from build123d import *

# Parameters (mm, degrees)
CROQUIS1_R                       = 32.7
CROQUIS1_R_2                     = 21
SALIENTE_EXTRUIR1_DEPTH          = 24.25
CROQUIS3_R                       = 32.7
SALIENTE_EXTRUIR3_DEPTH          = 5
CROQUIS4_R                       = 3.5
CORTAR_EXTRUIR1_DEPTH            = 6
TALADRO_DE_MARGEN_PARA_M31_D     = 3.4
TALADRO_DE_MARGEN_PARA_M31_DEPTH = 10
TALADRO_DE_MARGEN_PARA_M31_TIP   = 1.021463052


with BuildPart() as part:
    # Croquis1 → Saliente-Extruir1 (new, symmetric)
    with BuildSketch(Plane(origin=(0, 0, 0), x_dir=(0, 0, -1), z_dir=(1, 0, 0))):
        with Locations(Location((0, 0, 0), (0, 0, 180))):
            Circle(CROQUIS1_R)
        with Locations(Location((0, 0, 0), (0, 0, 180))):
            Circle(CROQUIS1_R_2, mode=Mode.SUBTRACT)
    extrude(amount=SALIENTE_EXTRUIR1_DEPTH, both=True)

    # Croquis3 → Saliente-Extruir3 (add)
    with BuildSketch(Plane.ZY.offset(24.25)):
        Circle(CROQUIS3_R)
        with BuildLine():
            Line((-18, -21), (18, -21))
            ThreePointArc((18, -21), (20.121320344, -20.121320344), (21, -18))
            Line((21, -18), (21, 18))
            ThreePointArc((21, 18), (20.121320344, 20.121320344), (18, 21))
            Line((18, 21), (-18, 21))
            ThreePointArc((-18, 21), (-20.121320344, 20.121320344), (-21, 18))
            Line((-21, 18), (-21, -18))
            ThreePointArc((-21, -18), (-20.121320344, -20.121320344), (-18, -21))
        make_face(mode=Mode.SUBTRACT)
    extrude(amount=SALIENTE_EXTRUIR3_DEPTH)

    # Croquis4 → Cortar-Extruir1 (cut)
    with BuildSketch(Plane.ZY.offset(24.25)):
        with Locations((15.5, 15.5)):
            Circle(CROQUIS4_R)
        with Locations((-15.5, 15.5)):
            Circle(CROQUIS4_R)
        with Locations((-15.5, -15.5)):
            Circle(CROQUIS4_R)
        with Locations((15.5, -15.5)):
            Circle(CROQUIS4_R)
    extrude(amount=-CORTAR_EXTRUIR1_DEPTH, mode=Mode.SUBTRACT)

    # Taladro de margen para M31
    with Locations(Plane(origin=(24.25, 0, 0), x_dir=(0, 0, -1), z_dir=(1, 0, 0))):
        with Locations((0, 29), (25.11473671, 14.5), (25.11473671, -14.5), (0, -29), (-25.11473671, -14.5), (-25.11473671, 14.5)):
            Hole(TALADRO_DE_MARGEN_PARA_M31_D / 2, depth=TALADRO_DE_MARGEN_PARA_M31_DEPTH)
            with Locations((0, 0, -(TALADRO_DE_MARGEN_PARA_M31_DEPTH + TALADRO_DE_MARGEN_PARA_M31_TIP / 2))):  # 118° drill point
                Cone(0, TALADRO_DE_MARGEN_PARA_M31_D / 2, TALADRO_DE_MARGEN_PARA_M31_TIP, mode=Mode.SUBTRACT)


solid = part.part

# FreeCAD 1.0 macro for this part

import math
import FreeCAD as App
import Part
import Sketcher
from FreeCAD import Vector

doc = App.newDocument("Part")
params = doc.addObject("Spreadsheet::Sheet", "Params")
for row, (alias, value) in enumerate([
    ("sketch1_diameter", "42 mm"),
    ("sketch1_diameter2", "65.4 mm"),
    ("pad1_length", "48.5 mm"),
    ("sketch2_radius", "3 mm"),
    ("sketch2_diameter", "65.4 mm"),
    ("sketch2_width", "36 mm"),
    ("pad2_length", "5 mm"),
    ("sketch3_diameter", "7 mm"),
    ("pocket1_length", "6 mm"),
    ("sketch4_diameter", "3.4 mm"),
    ("hole_diameter", "3.4 mm"),
    ("hole_depth", "10 mm"),
], start=1):
    params.set(f"A{row}", alias)
    params.set(f"B{row}", "=" + value)
    params.setAlias(f"B{row}", alias)

body = doc.addObject("PartDesign::Body", "Body")

# Sketch on YZ plane
sketch1 = body.newObject("Sketcher::SketchObject", "Sketch")
sketch1.AttachmentSupport = (doc.getObject("YZ_Plane"), [""])
sketch1.MapMode = "FlatFace"
sketch1.addGeometry([
    Part.Circle(Vector(0, 0, 0), Vector(0, 0, 1), 33),
    Part.Circle(Vector(0, 0, 0), Vector(0, 0, 1), 21),
], False)
sketch1.addConstraint([
    Sketcher.Constraint("Coincident", 0, 3, -1, 1),
    Sketcher.Constraint("Coincident", 1, 3, -1, 1),
    Sketcher.Constraint("Diameter", 1, 42.0),
    Sketcher.Constraint("Diameter", 0, 65.4),
])
sketch1.setExpression("Constraints[2]", "Params.sketch1_diameter")
sketch1.setExpression("Constraints[3]", "Params.sketch1_diameter2")
pad1 = body.newObject("PartDesign::Pad", "Pad")
pad1.Profile = sketch1
pad1.setExpression("Length", "Params.pad1_length")
pad1.Midplane = True

# Sketch on YZ plane
sketch2 = body.newObject("Sketcher::SketchObject", "Sketch001")
sketch2.AttachmentSupport = (doc.getObject("YZ_Plane"), [""])
sketch2.MapMode = "FlatFace"
sketch2.AttachmentOffset = App.Placement(Vector(0, 0, -24.25), App.Rotation())
sketch2.addGeometry([
    Part.Circle(Vector(0, 0, 0), Vector(0, 0, 1), 32.7),  # 0
    Part.LineSegment(Vector(-21, 18, 0), Vector(-21, -18, 0)),  # 1
    Part.ArcOfCircle(Part.Circle(Vector(-18, -18, 0), Vector(0, 0, 1), 3), math.radians(180), math.radians(270)),  # 2
    Part.LineSegment(Vector(-18, -21, 0), Vector(18, -21, 0)),  # 3
    Part.ArcOfCircle(Part.Circle(Vector(18, -18, 0), Vector(0, 0, 1), 3), math.radians(-90), math.radians(0)),  # 4
    Part.LineSegment(Vector(21, -18, 0), Vector(21, 18, 0)),  # 5
    Part.ArcOfCircle(Part.Circle(Vector(18, 18, 0), Vector(0, 0, 1), 3), math.radians(0), math.radians(90)),  # 6
    Part.LineSegment(Vector(18, 21, 0), Vector(-18, 21, 0)),  # 7
    Part.ArcOfCircle(Part.Circle(Vector(-18, 18, 0), Vector(0, 0, 1), 3), math.radians(90), math.radians(180)),  # 8
], False)
sketch2.addConstraint([
    Sketcher.Constraint("Tangent", 1, 2, 2, 1),
    Sketcher.Constraint("Tangent", 2, 2, 3, 1),
    Sketcher.Constraint("Tangent", 3, 2, 4, 1),
    Sketcher.Constraint("Tangent", 4, 2, 5, 1),
    Sketcher.Constraint("Tangent", 5, 2, 6, 1),
    Sketcher.Constraint("Tangent", 6, 2, 7, 1),
    Sketcher.Constraint("Tangent", 7, 2, 8, 1),
    Sketcher.Constraint("Tangent", 8, 2, 1, 1),
    Sketcher.Constraint("Vertical", 1),
    Sketcher.Constraint("Horizontal", 3),
    Sketcher.Constraint("Vertical", 5),
    Sketcher.Constraint("Horizontal", 7),
    Sketcher.Constraint("Coincident", 0, 3, -1, 1),
    Sketcher.Constraint("Equal", 2, 4),
    Sketcher.Constraint("Equal", 4, 6),
    Sketcher.Constraint("Equal", 6, 8),
    Sketcher.Constraint("Symmetric", 2, 3, 6, 3, -1, 1),
    Sketcher.Constraint("Equal", 7, 1),
    Sketcher.Constraint("Radius", 2, 3.0),
    Sketcher.Constraint("Diameter", 0, 65.4),
    Sketcher.Constraint("DistanceX", 3, 1, 3, 2, 36.0),
])
sketch2.setExpression("Constraints[18]", "Params.sketch2_radius")
sketch2.setExpression("Constraints[19]", "Params.sketch2_diameter")
sketch2.setExpression("Constraints[20]", "Params.sketch2_width")
pad2 = body.newObject("PartDesign::Pad", "Pad001")
pad2.Profile = sketch2
pad2.setExpression("Length", "Params.pad2_length")
pad2.Reversed = True

# Sketch on YZ plane
sketch3 = body.newObject("Sketcher::SketchObject", "Sketch002")
sketch3.AttachmentSupport = (doc.getObject("YZ_Plane"), [""])
sketch3.MapMode = "FlatFace"
sketch3.AttachmentOffset = App.Placement(Vector(0, 0, -24.25), App.Rotation())
sketch3.addGeometry([
    Part.Circle(Vector(15.5, 15.5, 0), Vector(0, 0, 1), 3.5),
    Part.Circle(Vector(15.5, -15.5, 0), Vector(0, 0, 1), 3.5),
    Part.Circle(Vector(-15.5, -15.5, 0), Vector(0, 0, 1), 3.5),
    Part.Circle(Vector(-15.5, 15.5, 0), Vector(0, 0, 1), 3.5),
], False)
sketch3.addConstraint([
    Sketcher.Constraint("Equal", 0, 1),
    Sketcher.Constraint("Equal", 1, 2),
    Sketcher.Constraint("Equal", 2, 3),
    Sketcher.Constraint("Symmetric", 0, 3, 2, 3, -1, 1),
    Sketcher.Constraint("Symmetric", 1, 3, 3, 3, -1, 1),
    Sketcher.Constraint("Symmetric", 1, 3, 2, 3, -2),
    Sketcher.Constraint("Diameter", 0, 7.0),
    Sketcher.Constraint("DistanceY", 1, 3, 0, 3, 31.0),
    Sketcher.Constraint("DistanceX", 2, 3, 1, 3, 31.0),
])
sketch3.setExpression("Constraints[6]", "Params.sketch3_diameter")
pocket1 = body.newObject("PartDesign::Pocket", "Pocket")
pocket1.Profile = sketch3
pocket1.setExpression("Length", "Params.pocket1_length")
pocket1.Reversed = True

# Sketch on YZ plane
sketch4 = body.newObject("Sketcher::SketchObject", "Sketch003")
sketch4.AttachmentSupport = (doc.getObject("YZ_Plane"), [""])
sketch4.MapMode = "FlatFace"
sketch4.AttachmentOffset = App.Placement(Vector(0, 0, 24.25), App.Rotation())
sketch4.addGeometry([
    Part.Circle(Vector(29, 0, 0), Vector(0, 0, 1), 1.7),  # 0
    Part.Circle(Vector(14.5, -25.1, 0), Vector(0, 0, 1), 1.7),  # 1
    Part.Circle(Vector(-14.5, -25.1, 0), Vector(0, 0, 1), 1.7),  # 2
    Part.Circle(Vector(-29, 0, 0), Vector(0, 0, 1), 1.7),  # 3
    Part.Circle(Vector(-14.5, 25.1, 0), Vector(0, 0, 1), 1.7),  # 4
    Part.Circle(Vector(14.5, 25.1, 0), Vector(0, 0, 1), 1.7),  # 5
], False)
sketch4.addConstraint([
    Sketcher.Constraint("Equal", 0, 1),
    Sketcher.Constraint("Equal", 1, 2),
    Sketcher.Constraint("Equal", 2, 3),
    Sketcher.Constraint("Equal", 3, 4),
    Sketcher.Constraint("Equal", 4, 5),
    Sketcher.Constraint("Symmetric", 0, 3, 3, 3, -1, 1),
    Sketcher.Constraint("Symmetric", 1, 3, 4, 3, -1, 1),
    Sketcher.Constraint("Symmetric", 2, 3, 5, 3, -1, 1),
    Sketcher.Constraint("Symmetric", 1, 3, 2, 3, -2),
    Sketcher.Constraint("PointOnObject", 0, 3, -1),
    Sketcher.Constraint("Diameter", 0, 3.4),
    Sketcher.Constraint("DistanceX", -1, 1, 0, 3, 29.0),
    Sketcher.Constraint("DistanceX", 2, 3, 1, 3, 29.0),
    Sketcher.Constraint("DistanceY", 1, 3, -1, 1, 25.114737),
])
sketch4.setExpression("Constraints[10]", "Params.sketch4_diameter")
doc.recompute()
hole = body.newObject("PartDesign::Hole", "Hole")
hole.Profile = sketch4
hole.ThreadType = "None"
hole.setExpression("Diameter", "Params.hole_diameter")
hole.DepthType = "Dimension"
hole.setExpression("Depth", "Params.hole_depth")
hole.DrillPoint = "Angled"
hole.DrillPointAngle = 118

doc.recompute()
